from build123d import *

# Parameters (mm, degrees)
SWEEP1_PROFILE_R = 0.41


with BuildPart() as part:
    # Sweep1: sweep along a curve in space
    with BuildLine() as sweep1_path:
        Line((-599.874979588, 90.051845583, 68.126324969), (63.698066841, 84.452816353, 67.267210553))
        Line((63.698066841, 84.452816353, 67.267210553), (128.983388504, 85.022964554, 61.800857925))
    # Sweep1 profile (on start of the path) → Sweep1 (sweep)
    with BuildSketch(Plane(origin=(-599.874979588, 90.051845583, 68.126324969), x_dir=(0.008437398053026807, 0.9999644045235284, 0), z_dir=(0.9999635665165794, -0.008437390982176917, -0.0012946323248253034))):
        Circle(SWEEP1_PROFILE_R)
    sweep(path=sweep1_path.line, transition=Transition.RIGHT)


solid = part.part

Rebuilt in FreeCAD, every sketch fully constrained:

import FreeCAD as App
import Part
import Sketcher

V = App.Vector

doc = App.newDocument("Part")
body = doc.addObject("PartDesign::Body", "Body")

sketch1 = doc.addObject("Sketcher::SketchObject", "Sketch")
body.addObject(sketch1)
sketch1.Placement = App.Placement(V(-599.87498, 90.051846, 68.126325), App.Rotation(V(0.008437398, 0.999964405, 0), V(0.001294586, -0.000010923, 0.999999163), V(0.999963567, -0.008437391, -0.001294632), "ZXY"))
sketch1.addGeometry(Part.Circle(V(0, 0, 0), V(0, 0, 1), 0.41), False)
sketch1.addConstraint([
    Sketcher.Constraint("Coincident", 0, 3, -1, 1),
    Sketcher.Constraint("Diameter", 0, 0.82),
])

sketch2 = doc.addObject("Sketcher::SketchObject", "Sketch001")
body.addObject(sketch2)
sketch2.Placement = App.Placement(V(0.826282, 94.894508, 19.766016), App.Rotation(V(0, 0.203917933, -0.978987986), V(0.999963669, -0.008344995, -0.001738218), V(-0.008524104, -0.978952418, -0.203910525), "ZXY"))
sketch2.addGeometry([
    Part.LineSegment(V(-48, -601, 0), V(-49, 63, 0)),
    Part.LineSegment(V(-49, 63, 0), V(-43, 128, 0)),
], False)
sketch2.addConstraint([
    Sketcher.Constraint("Coincident", 0, 2, 1, 1),
    Sketcher.Constraint("DistanceY", -1, 1, 0, 2, 62.874069),
    Sketcher.Constraint("DistanceX", 1, 2, -1, 1, 43.16459),
    Sketcher.Constraint("DistanceX", 0, 2, 0, 1, 0.30068),
    Sketcher.Constraint("DistanceY", 0, 1, 1, 2, 728.884849),
    Sketcher.Constraint("Distance", 0, 663.597223),
    Sketcher.Constraint("Distance", 1, 65.516252),
])
doc.recompute()

additivepipe = doc.addObject("PartDesign::AdditivePipe", "AdditivePipe")
body.addObject(additivepipe)
additivepipe.Profile = sketch1
additivepipe.Spine = (sketch2, ["Edge1", "Edge2"])
additivepipe.Transition = "Right corner"

doc.recompute()
